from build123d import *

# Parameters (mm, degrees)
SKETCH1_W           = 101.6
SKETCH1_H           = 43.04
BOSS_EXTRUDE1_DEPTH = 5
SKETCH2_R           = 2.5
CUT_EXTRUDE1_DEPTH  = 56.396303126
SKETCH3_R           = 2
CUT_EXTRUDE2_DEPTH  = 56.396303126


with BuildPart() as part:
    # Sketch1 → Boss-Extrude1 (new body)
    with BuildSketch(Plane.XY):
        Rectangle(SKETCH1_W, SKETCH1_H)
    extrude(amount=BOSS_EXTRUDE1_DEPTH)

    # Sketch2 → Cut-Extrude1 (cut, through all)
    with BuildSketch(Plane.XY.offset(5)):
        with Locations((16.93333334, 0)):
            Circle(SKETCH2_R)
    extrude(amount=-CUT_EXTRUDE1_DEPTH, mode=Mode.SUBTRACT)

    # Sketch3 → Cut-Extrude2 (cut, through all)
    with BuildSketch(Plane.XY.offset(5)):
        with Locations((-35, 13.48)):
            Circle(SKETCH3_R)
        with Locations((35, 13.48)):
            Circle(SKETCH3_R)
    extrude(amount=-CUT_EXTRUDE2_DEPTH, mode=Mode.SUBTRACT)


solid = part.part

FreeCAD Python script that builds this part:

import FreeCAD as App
import Part
import Sketcher

V = App.Vector
Q = App.Units.Quantity

doc = App.newDocument("Part")
body = doc.addObject("PartDesign::Body", "Body")

sketch1 = body.newObject("Sketcher::SketchObject", "Sketch")
sketch1.AttachmentSupport = (doc.getObject("XY_Plane"), [""])
sketch1.MapMode = "FlatFace"
sketch1.addGeometry([
    Part.LineSegment(V(-51, 22, 0), V(-51, -22, 0)),
    Part.LineSegment(V(-51, -22, 0), V(51, -22, 0)),
    Part.LineSegment(V(51, -22, 0), V(51, 22, 0)),
    Part.LineSegment(V(51, 22, 0), V(-51, 22, 0)),
], False)
sketch1.addConstraint([
    Sketcher.Constraint("Coincident", 0, 2, 1, 1),
    Sketcher.Constraint("Coincident", 1, 2, 2, 1),
    Sketcher.Constraint("Coincident", 2, 2, 3, 1),
    Sketcher.Constraint("Coincident", 3, 2, 0, 1),
    Sketcher.Constraint("Vertical", 0),
    Sketcher.Constraint("Horizontal", 1),
    Sketcher.Constraint("Vertical", 2),
    Sketcher.Constraint("Horizontal", 3),
    Sketcher.Constraint("Symmetric", 0, 2, 2, 2, -1, 1),
    Sketcher.Constraint("DistanceX", 1, 1, 1, 2, Q("101.6 mm")),
    Sketcher.Constraint("DistanceY", 0, 2, 0, 1, Q("43.04 mm")),
])
pad1 = body.newObject("PartDesign::Pad", "Pad")
pad1.Profile = sketch1
pad1.Length = 5

sketch2 = body.newObject("Sketcher::SketchObject", "Sketch001")
sketch2.AttachmentSupport = (doc.getObject("XY_Plane"), [""])
sketch2.MapMode = "FlatFace"
sketch2.AttachmentOffset = App.Placement(V(0, 0, 5), App.Rotation())
sketch2.addGeometry(Part.Circle(V(16.9, 0, 0), V(0, 0, 1), 2.5), False)
sketch2.addConstraint([
    Sketcher.Constraint("PointOnObject", 0, 3, -1),
    Sketcher.Constraint("Diameter", 0, Q("5 mm")),
    Sketcher.Constraint("DistanceX", -1, 1, 0, 3, Q("16.933333 mm")),
])
pocket1 = body.newObject("PartDesign::Pocket", "Pocket")
pocket1.Profile = sketch2
pocket1.Type = "ThroughAll"

sketch3 = body.newObject("Sketcher::SketchObject", "Sketch002")
sketch3.AttachmentSupport = (doc.getObject("XY_Plane"), [""])
sketch3.MapMode = "FlatFace"
sketch3.AttachmentOffset = App.Placement(V(0, 0, 5), App.Rotation())
sketch3.addGeometry([
    Part.Circle(V(-35, 13.5, 0), V(0, 0, 1), 2),
    Part.Circle(V(35, 13.5, 0), V(0, 0, 1), 2),
], False)
sketch3.addConstraint([
    Sketcher.Constraint("Equal", 0, 1),
    Sketcher.Constraint("Symmetric", 0, 3, 1, 3, -2),
    Sketcher.Constraint("Diameter", 0, Q("4 mm")),
    Sketcher.Constraint("DistanceX", 0, 3, -1, 1, Q("35 mm")),
    Sketcher.Constraint("DistanceY", -1, 1, 0, 3, Q("13.48 mm")),
])
pocket2 = body.newObject("PartDesign::Pocket", "Pocket001")
pocket2.Profile = sketch3
pocket2.Type = "ThroughAll"

doc.recompute()
